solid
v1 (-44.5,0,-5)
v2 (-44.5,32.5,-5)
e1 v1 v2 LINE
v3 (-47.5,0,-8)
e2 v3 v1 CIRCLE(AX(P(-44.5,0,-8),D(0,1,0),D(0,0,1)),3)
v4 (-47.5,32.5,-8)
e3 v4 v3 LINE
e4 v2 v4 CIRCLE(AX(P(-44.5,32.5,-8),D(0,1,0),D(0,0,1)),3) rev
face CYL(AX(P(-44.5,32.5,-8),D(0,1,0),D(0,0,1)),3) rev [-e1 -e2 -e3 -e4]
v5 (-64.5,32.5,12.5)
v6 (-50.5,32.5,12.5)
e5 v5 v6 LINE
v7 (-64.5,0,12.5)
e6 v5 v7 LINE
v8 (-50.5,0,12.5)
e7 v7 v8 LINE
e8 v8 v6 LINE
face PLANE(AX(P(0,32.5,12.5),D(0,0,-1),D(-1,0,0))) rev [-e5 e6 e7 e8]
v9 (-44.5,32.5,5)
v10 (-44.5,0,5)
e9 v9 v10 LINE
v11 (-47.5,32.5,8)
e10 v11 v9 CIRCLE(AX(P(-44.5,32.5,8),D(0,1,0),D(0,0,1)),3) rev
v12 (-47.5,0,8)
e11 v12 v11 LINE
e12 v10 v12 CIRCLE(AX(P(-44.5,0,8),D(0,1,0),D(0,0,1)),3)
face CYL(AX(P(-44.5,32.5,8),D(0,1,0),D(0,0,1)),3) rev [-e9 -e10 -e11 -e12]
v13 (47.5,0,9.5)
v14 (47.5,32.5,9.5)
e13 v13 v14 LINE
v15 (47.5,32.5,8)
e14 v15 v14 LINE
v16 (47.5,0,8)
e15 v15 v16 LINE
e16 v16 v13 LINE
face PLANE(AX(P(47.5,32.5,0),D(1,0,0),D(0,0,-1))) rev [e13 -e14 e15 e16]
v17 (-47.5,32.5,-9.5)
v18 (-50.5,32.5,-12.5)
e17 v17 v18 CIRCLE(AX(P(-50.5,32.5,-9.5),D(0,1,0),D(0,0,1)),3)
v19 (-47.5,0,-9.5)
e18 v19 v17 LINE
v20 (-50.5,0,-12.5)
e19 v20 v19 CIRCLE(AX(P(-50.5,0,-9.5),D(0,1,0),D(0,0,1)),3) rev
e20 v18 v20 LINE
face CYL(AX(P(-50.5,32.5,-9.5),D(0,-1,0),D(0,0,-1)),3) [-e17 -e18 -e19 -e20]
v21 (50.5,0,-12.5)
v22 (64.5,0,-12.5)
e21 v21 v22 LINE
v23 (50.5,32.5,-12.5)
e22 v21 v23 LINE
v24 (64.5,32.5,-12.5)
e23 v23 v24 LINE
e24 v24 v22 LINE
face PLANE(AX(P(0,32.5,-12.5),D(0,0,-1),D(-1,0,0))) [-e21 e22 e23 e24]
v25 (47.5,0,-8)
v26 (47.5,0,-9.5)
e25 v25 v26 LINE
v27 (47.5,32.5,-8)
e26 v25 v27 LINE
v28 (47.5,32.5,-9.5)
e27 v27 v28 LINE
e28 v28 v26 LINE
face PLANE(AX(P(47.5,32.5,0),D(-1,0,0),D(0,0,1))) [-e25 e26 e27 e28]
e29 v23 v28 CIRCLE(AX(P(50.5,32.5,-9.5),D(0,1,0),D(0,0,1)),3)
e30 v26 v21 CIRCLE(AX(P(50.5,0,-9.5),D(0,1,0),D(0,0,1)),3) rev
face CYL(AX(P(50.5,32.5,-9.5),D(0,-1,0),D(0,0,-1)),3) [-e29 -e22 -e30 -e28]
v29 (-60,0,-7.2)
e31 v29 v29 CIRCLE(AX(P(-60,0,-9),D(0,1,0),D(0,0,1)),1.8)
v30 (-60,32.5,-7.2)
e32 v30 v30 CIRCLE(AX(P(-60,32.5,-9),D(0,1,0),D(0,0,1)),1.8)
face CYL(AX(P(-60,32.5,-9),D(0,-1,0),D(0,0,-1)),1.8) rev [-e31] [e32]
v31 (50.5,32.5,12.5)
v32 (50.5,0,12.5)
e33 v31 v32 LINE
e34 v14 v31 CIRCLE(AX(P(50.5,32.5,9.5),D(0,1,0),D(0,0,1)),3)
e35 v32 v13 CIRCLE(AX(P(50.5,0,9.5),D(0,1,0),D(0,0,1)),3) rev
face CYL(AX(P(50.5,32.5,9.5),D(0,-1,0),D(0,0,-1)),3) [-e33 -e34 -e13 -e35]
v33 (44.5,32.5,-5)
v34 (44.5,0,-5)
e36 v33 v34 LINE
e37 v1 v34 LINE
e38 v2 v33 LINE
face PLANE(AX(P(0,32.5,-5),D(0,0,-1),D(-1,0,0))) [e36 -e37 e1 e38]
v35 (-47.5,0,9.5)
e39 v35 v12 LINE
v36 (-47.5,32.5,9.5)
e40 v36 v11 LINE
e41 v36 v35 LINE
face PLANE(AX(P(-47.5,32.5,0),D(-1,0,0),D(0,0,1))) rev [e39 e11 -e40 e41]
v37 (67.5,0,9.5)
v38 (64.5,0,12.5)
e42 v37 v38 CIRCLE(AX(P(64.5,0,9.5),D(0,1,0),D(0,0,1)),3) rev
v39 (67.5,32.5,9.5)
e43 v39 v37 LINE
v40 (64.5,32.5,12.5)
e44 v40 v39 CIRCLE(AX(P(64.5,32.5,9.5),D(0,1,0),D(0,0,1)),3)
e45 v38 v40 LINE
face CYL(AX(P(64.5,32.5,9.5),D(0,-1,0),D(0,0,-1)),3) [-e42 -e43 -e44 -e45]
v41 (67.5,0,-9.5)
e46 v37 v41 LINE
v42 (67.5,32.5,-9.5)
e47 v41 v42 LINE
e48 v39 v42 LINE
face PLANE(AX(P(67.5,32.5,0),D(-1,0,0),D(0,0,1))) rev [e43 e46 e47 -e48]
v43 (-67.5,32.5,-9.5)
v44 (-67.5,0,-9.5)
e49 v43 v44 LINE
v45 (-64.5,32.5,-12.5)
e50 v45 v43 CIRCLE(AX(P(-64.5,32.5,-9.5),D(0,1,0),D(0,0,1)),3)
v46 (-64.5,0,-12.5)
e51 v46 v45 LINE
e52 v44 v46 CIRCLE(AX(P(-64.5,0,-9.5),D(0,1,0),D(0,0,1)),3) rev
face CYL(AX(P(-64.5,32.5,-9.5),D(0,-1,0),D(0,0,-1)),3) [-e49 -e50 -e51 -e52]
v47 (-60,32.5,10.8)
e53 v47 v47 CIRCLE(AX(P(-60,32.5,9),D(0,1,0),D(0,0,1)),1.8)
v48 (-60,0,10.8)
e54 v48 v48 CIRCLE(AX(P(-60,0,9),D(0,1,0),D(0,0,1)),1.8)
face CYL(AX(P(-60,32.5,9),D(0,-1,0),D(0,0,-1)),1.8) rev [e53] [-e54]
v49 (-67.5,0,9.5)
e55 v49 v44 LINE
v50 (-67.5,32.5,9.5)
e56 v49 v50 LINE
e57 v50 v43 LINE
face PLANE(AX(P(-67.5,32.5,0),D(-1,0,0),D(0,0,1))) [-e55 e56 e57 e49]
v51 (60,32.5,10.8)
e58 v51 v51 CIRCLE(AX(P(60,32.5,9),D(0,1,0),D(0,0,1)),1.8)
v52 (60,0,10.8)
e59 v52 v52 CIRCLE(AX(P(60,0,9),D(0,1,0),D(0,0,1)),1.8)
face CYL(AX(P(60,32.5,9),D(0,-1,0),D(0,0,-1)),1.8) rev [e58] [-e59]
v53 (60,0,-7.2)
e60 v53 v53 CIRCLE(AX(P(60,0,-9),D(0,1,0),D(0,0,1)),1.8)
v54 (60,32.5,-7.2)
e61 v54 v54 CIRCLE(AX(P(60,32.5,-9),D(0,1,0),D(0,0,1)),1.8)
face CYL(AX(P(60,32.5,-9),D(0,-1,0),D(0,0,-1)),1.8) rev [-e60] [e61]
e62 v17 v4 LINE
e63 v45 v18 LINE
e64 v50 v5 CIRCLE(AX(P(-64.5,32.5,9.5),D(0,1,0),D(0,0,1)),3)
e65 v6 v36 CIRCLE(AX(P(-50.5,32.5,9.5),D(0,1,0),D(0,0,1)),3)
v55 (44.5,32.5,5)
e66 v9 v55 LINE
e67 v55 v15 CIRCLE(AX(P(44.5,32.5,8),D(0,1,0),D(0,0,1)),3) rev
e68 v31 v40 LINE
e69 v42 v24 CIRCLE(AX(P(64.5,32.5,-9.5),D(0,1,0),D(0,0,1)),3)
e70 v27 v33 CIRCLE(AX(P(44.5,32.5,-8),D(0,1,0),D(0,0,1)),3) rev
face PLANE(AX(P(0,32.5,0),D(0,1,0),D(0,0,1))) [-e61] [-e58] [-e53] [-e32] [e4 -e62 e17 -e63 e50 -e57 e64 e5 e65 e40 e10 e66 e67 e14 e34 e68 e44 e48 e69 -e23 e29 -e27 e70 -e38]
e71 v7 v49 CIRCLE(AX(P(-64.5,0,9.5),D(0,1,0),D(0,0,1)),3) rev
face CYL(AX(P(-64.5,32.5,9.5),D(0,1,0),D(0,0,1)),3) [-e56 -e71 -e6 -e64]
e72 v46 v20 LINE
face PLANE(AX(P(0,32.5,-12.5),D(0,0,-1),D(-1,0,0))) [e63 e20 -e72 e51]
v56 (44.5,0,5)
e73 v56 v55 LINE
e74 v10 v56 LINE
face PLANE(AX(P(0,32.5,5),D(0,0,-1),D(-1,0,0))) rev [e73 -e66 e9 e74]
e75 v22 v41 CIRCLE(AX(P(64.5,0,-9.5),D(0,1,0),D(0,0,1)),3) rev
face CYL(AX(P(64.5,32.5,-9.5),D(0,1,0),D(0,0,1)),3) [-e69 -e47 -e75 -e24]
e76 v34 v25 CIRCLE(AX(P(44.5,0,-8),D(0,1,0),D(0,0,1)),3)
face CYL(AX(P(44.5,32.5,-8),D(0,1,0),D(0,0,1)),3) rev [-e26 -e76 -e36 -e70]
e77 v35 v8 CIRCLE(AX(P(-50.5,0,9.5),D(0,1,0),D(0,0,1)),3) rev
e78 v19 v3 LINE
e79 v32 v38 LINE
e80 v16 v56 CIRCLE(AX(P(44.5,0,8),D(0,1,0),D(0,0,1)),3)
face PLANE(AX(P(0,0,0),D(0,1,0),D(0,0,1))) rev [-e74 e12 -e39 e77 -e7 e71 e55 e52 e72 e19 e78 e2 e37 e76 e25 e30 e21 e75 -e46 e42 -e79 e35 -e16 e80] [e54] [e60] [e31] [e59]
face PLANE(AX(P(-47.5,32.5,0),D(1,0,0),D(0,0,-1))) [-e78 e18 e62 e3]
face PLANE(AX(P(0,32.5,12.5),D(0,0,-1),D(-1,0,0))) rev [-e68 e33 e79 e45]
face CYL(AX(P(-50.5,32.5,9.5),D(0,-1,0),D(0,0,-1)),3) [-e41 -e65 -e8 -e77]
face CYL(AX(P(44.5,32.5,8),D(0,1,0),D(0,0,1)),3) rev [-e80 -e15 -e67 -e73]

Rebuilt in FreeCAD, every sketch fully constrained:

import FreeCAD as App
import Part
import Sketcher
from FreeCAD import Vector
Q = App.Units.Quantity


def edges_at(feature, points):
    """Names of the edges that pass closest to the given points."""
    edges = feature.Shape.Edges
    near = lambda p: min(range(len(edges)), key=lambda i: edges[i].distToShape(Part.Vertex(*p))[0])
    return sorted({f"Edge{near(p) + 1}" for p in points})

doc = App.newDocument("Part")
body = doc.addObject("PartDesign::Body", "Body")

# Sketch on XZ plane
sketch1 = body.newObject("Sketcher::SketchObject", "Sketch")
sketch1.AttachmentSupport = (doc.getObject("XZ_Plane"), [""])
sketch1.MapMode = "FlatFace"
sketch1.addGeometry([
    Part.LineSegment(Vector(-67.5, -12.5, 0), Vector(-67.5, 12.5, 0)),  # 0
    Part.LineSegment(Vector(-67.5, 12.5, 0), Vector(-47.5, 12.5, 0)),  # 1
    Part.LineSegment(Vector(-47.5, 12.5, 0), Vector(-47.5, 5, 0)),  # 2
    Part.LineSegment(Vector(-47.5, 5, 0), Vector(47.5, 5, 0)),  # 3
    Part.LineSegment(Vector(47.5, 5, 0), Vector(47.5, 12.5, 0)),  # 4
    Part.LineSegment(Vector(47.5, 12.5, 0), Vector(67.5, 12.5, 0)),  # 5
    Part.LineSegment(Vector(67.5, 12.5, 0), Vector(67.5, -12.5, 0)),  # 6
    Part.LineSegment(Vector(67.5, -12.5, 0), Vector(47.5, -12.5, 0)),  # 7
    Part.LineSegment(Vector(47.5, -12.5, 0), Vector(47.5, -5, 0)),  # 8
    Part.LineSegment(Vector(47.5, -5, 0), Vector(-47.5, -5, 0)),  # 9
    Part.LineSegment(Vector(-47.5, -5, 0), Vector(-47.5, -12.5, 0)),  # 10
    Part.LineSegment(Vector(-47.5, -12.5, 0), Vector(-67.5, -12.5, 0)),  # 11
    Part.Circle(Vector(-60, 9, 0), Vector(0, 0, 1), 1.8),  # 12
    Part.Circle(Vector(60, 9, 0), Vector(0, 0, 1), 1.8),  # 13
    Part.Circle(Vector(-60, -9, 0), Vector(0, 0, 1), 1.8),  # 14
    Part.Circle(Vector(60, -9, 0), Vector(0, 0, 1), 1.8),  # 15
], False)
sketch1.addConstraint([
    Sketcher.Constraint("Coincident", 0, 2, 1, 1),
    Sketcher.Constraint("Coincident", 1, 2, 2, 1),
    Sketcher.Constraint("Coincident", 2, 2, 3, 1),
    Sketcher.Constraint("Coincident", 3, 2, 4, 1),
    Sketcher.Constraint("Coincident", 4, 2, 5, 1),
    Sketcher.Constraint("Coincident", 5, 2, 6, 1),
    Sketcher.Constraint("Coincident", 6, 2, 7, 1),
    Sketcher.Constraint("Coincident", 7, 2, 8, 1),
    Sketcher.Constraint("Coincident", 8, 2, 9, 1),
    Sketcher.Constraint("Coincident", 9, 2, 10, 1),
    Sketcher.Constraint("Coincident", 10, 2, 11, 1),
    Sketcher.Constraint("Coincident", 11, 2, 0, 1),
    Sketcher.Constraint("Vertical", 0),
    Sketcher.Constraint("Horizontal", 1),
    Sketcher.Constraint("Vertical", 2),
    Sketcher.Constraint("Horizontal", 3),
    Sketcher.Constraint("Vertical", 4),
    Sketcher.Constraint("Horizontal", 5),
    Sketcher.Constraint("Vertical", 6),
    Sketcher.Constraint("Horizontal", 7),
    Sketcher.Constraint("Vertical", 8),
    Sketcher.Constraint("Horizontal", 9),
    Sketcher.Constraint("Vertical", 10),
    Sketcher.Constraint("Horizontal", 11),
    Sketcher.Constraint("Equal", 12, 13),
    Sketcher.Constraint("Equal", 13, 14),
    Sketcher.Constraint("Equal", 14, 15),
    Sketcher.Constraint("Symmetric", 13, 3, 14, 3, -1, 1),
    Sketcher.Constraint("Symmetric", 12, 3, 15, 3, -1, 1),
    Sketcher.Constraint("Symmetric", 0, 2, 6, 2, -1, 1),
    Sketcher.Constraint("Symmetric", 2, 2, 8, 2, -1, 1),
    Sketcher.Constraint("Symmetric", 4, 2, 10, 2, -1, 1),
    Sketcher.Constraint("Symmetric", 12, 3, 13, 3, -2),
    Sketcher.Constraint("Symmetric", 1, 2, 4, 2, -2),
    Sketcher.Constraint("Diameter", 12, Q("3.6 mm")),
    Sketcher.Constraint("DistanceX", 1, 1, 1, 2, Q("20 mm")),
    Sketcher.Constraint("DistanceX", 3, 1, 3, 2, Q("95 mm")),
    Sketcher.Constraint("DistanceY", 0, 1, 0, 2, Q("25 mm")),
    Sketcher.Constraint("DistanceY", 2, 2, 2, 1, Q("7.5 mm")),
    Sketcher.Constraint("DistanceX", 12, 3, -1, 1, Q("60 mm")),
    Sketcher.Constraint("DistanceY", -1, 1, 12, 3, Q("9 mm")),
])
pad1 = body.newObject("PartDesign::Pad", "Pad")
pad1.Profile = sketch1
pad1.Length = 32.5
pad1.Reversed = True
doc.recompute()

fillet = body.newObject("PartDesign::Fillet", "Fillet")
fillet.Base = (pad1, edges_at(pad1, [
    (47.5, 16.25, -12.5),
    (67.5, 16.25, -12.5),
    (67.5, 16.25, 12.5),
    (47.5, 16.25, 12.5),
    (47.5, 16.25, 5),
    (-47.5, 16.25, 5),
    (-47.5, 16.25, 12.5),
    (-67.5, 16.25, 12.5),
    (-67.5, 16.25, -12.5),
    (-47.5, 16.25, -12.5),
    (-47.5, 16.25, -5),
    (47.5, 16.25, -5),
]))
fillet.Radius = 3

doc.recompute()
